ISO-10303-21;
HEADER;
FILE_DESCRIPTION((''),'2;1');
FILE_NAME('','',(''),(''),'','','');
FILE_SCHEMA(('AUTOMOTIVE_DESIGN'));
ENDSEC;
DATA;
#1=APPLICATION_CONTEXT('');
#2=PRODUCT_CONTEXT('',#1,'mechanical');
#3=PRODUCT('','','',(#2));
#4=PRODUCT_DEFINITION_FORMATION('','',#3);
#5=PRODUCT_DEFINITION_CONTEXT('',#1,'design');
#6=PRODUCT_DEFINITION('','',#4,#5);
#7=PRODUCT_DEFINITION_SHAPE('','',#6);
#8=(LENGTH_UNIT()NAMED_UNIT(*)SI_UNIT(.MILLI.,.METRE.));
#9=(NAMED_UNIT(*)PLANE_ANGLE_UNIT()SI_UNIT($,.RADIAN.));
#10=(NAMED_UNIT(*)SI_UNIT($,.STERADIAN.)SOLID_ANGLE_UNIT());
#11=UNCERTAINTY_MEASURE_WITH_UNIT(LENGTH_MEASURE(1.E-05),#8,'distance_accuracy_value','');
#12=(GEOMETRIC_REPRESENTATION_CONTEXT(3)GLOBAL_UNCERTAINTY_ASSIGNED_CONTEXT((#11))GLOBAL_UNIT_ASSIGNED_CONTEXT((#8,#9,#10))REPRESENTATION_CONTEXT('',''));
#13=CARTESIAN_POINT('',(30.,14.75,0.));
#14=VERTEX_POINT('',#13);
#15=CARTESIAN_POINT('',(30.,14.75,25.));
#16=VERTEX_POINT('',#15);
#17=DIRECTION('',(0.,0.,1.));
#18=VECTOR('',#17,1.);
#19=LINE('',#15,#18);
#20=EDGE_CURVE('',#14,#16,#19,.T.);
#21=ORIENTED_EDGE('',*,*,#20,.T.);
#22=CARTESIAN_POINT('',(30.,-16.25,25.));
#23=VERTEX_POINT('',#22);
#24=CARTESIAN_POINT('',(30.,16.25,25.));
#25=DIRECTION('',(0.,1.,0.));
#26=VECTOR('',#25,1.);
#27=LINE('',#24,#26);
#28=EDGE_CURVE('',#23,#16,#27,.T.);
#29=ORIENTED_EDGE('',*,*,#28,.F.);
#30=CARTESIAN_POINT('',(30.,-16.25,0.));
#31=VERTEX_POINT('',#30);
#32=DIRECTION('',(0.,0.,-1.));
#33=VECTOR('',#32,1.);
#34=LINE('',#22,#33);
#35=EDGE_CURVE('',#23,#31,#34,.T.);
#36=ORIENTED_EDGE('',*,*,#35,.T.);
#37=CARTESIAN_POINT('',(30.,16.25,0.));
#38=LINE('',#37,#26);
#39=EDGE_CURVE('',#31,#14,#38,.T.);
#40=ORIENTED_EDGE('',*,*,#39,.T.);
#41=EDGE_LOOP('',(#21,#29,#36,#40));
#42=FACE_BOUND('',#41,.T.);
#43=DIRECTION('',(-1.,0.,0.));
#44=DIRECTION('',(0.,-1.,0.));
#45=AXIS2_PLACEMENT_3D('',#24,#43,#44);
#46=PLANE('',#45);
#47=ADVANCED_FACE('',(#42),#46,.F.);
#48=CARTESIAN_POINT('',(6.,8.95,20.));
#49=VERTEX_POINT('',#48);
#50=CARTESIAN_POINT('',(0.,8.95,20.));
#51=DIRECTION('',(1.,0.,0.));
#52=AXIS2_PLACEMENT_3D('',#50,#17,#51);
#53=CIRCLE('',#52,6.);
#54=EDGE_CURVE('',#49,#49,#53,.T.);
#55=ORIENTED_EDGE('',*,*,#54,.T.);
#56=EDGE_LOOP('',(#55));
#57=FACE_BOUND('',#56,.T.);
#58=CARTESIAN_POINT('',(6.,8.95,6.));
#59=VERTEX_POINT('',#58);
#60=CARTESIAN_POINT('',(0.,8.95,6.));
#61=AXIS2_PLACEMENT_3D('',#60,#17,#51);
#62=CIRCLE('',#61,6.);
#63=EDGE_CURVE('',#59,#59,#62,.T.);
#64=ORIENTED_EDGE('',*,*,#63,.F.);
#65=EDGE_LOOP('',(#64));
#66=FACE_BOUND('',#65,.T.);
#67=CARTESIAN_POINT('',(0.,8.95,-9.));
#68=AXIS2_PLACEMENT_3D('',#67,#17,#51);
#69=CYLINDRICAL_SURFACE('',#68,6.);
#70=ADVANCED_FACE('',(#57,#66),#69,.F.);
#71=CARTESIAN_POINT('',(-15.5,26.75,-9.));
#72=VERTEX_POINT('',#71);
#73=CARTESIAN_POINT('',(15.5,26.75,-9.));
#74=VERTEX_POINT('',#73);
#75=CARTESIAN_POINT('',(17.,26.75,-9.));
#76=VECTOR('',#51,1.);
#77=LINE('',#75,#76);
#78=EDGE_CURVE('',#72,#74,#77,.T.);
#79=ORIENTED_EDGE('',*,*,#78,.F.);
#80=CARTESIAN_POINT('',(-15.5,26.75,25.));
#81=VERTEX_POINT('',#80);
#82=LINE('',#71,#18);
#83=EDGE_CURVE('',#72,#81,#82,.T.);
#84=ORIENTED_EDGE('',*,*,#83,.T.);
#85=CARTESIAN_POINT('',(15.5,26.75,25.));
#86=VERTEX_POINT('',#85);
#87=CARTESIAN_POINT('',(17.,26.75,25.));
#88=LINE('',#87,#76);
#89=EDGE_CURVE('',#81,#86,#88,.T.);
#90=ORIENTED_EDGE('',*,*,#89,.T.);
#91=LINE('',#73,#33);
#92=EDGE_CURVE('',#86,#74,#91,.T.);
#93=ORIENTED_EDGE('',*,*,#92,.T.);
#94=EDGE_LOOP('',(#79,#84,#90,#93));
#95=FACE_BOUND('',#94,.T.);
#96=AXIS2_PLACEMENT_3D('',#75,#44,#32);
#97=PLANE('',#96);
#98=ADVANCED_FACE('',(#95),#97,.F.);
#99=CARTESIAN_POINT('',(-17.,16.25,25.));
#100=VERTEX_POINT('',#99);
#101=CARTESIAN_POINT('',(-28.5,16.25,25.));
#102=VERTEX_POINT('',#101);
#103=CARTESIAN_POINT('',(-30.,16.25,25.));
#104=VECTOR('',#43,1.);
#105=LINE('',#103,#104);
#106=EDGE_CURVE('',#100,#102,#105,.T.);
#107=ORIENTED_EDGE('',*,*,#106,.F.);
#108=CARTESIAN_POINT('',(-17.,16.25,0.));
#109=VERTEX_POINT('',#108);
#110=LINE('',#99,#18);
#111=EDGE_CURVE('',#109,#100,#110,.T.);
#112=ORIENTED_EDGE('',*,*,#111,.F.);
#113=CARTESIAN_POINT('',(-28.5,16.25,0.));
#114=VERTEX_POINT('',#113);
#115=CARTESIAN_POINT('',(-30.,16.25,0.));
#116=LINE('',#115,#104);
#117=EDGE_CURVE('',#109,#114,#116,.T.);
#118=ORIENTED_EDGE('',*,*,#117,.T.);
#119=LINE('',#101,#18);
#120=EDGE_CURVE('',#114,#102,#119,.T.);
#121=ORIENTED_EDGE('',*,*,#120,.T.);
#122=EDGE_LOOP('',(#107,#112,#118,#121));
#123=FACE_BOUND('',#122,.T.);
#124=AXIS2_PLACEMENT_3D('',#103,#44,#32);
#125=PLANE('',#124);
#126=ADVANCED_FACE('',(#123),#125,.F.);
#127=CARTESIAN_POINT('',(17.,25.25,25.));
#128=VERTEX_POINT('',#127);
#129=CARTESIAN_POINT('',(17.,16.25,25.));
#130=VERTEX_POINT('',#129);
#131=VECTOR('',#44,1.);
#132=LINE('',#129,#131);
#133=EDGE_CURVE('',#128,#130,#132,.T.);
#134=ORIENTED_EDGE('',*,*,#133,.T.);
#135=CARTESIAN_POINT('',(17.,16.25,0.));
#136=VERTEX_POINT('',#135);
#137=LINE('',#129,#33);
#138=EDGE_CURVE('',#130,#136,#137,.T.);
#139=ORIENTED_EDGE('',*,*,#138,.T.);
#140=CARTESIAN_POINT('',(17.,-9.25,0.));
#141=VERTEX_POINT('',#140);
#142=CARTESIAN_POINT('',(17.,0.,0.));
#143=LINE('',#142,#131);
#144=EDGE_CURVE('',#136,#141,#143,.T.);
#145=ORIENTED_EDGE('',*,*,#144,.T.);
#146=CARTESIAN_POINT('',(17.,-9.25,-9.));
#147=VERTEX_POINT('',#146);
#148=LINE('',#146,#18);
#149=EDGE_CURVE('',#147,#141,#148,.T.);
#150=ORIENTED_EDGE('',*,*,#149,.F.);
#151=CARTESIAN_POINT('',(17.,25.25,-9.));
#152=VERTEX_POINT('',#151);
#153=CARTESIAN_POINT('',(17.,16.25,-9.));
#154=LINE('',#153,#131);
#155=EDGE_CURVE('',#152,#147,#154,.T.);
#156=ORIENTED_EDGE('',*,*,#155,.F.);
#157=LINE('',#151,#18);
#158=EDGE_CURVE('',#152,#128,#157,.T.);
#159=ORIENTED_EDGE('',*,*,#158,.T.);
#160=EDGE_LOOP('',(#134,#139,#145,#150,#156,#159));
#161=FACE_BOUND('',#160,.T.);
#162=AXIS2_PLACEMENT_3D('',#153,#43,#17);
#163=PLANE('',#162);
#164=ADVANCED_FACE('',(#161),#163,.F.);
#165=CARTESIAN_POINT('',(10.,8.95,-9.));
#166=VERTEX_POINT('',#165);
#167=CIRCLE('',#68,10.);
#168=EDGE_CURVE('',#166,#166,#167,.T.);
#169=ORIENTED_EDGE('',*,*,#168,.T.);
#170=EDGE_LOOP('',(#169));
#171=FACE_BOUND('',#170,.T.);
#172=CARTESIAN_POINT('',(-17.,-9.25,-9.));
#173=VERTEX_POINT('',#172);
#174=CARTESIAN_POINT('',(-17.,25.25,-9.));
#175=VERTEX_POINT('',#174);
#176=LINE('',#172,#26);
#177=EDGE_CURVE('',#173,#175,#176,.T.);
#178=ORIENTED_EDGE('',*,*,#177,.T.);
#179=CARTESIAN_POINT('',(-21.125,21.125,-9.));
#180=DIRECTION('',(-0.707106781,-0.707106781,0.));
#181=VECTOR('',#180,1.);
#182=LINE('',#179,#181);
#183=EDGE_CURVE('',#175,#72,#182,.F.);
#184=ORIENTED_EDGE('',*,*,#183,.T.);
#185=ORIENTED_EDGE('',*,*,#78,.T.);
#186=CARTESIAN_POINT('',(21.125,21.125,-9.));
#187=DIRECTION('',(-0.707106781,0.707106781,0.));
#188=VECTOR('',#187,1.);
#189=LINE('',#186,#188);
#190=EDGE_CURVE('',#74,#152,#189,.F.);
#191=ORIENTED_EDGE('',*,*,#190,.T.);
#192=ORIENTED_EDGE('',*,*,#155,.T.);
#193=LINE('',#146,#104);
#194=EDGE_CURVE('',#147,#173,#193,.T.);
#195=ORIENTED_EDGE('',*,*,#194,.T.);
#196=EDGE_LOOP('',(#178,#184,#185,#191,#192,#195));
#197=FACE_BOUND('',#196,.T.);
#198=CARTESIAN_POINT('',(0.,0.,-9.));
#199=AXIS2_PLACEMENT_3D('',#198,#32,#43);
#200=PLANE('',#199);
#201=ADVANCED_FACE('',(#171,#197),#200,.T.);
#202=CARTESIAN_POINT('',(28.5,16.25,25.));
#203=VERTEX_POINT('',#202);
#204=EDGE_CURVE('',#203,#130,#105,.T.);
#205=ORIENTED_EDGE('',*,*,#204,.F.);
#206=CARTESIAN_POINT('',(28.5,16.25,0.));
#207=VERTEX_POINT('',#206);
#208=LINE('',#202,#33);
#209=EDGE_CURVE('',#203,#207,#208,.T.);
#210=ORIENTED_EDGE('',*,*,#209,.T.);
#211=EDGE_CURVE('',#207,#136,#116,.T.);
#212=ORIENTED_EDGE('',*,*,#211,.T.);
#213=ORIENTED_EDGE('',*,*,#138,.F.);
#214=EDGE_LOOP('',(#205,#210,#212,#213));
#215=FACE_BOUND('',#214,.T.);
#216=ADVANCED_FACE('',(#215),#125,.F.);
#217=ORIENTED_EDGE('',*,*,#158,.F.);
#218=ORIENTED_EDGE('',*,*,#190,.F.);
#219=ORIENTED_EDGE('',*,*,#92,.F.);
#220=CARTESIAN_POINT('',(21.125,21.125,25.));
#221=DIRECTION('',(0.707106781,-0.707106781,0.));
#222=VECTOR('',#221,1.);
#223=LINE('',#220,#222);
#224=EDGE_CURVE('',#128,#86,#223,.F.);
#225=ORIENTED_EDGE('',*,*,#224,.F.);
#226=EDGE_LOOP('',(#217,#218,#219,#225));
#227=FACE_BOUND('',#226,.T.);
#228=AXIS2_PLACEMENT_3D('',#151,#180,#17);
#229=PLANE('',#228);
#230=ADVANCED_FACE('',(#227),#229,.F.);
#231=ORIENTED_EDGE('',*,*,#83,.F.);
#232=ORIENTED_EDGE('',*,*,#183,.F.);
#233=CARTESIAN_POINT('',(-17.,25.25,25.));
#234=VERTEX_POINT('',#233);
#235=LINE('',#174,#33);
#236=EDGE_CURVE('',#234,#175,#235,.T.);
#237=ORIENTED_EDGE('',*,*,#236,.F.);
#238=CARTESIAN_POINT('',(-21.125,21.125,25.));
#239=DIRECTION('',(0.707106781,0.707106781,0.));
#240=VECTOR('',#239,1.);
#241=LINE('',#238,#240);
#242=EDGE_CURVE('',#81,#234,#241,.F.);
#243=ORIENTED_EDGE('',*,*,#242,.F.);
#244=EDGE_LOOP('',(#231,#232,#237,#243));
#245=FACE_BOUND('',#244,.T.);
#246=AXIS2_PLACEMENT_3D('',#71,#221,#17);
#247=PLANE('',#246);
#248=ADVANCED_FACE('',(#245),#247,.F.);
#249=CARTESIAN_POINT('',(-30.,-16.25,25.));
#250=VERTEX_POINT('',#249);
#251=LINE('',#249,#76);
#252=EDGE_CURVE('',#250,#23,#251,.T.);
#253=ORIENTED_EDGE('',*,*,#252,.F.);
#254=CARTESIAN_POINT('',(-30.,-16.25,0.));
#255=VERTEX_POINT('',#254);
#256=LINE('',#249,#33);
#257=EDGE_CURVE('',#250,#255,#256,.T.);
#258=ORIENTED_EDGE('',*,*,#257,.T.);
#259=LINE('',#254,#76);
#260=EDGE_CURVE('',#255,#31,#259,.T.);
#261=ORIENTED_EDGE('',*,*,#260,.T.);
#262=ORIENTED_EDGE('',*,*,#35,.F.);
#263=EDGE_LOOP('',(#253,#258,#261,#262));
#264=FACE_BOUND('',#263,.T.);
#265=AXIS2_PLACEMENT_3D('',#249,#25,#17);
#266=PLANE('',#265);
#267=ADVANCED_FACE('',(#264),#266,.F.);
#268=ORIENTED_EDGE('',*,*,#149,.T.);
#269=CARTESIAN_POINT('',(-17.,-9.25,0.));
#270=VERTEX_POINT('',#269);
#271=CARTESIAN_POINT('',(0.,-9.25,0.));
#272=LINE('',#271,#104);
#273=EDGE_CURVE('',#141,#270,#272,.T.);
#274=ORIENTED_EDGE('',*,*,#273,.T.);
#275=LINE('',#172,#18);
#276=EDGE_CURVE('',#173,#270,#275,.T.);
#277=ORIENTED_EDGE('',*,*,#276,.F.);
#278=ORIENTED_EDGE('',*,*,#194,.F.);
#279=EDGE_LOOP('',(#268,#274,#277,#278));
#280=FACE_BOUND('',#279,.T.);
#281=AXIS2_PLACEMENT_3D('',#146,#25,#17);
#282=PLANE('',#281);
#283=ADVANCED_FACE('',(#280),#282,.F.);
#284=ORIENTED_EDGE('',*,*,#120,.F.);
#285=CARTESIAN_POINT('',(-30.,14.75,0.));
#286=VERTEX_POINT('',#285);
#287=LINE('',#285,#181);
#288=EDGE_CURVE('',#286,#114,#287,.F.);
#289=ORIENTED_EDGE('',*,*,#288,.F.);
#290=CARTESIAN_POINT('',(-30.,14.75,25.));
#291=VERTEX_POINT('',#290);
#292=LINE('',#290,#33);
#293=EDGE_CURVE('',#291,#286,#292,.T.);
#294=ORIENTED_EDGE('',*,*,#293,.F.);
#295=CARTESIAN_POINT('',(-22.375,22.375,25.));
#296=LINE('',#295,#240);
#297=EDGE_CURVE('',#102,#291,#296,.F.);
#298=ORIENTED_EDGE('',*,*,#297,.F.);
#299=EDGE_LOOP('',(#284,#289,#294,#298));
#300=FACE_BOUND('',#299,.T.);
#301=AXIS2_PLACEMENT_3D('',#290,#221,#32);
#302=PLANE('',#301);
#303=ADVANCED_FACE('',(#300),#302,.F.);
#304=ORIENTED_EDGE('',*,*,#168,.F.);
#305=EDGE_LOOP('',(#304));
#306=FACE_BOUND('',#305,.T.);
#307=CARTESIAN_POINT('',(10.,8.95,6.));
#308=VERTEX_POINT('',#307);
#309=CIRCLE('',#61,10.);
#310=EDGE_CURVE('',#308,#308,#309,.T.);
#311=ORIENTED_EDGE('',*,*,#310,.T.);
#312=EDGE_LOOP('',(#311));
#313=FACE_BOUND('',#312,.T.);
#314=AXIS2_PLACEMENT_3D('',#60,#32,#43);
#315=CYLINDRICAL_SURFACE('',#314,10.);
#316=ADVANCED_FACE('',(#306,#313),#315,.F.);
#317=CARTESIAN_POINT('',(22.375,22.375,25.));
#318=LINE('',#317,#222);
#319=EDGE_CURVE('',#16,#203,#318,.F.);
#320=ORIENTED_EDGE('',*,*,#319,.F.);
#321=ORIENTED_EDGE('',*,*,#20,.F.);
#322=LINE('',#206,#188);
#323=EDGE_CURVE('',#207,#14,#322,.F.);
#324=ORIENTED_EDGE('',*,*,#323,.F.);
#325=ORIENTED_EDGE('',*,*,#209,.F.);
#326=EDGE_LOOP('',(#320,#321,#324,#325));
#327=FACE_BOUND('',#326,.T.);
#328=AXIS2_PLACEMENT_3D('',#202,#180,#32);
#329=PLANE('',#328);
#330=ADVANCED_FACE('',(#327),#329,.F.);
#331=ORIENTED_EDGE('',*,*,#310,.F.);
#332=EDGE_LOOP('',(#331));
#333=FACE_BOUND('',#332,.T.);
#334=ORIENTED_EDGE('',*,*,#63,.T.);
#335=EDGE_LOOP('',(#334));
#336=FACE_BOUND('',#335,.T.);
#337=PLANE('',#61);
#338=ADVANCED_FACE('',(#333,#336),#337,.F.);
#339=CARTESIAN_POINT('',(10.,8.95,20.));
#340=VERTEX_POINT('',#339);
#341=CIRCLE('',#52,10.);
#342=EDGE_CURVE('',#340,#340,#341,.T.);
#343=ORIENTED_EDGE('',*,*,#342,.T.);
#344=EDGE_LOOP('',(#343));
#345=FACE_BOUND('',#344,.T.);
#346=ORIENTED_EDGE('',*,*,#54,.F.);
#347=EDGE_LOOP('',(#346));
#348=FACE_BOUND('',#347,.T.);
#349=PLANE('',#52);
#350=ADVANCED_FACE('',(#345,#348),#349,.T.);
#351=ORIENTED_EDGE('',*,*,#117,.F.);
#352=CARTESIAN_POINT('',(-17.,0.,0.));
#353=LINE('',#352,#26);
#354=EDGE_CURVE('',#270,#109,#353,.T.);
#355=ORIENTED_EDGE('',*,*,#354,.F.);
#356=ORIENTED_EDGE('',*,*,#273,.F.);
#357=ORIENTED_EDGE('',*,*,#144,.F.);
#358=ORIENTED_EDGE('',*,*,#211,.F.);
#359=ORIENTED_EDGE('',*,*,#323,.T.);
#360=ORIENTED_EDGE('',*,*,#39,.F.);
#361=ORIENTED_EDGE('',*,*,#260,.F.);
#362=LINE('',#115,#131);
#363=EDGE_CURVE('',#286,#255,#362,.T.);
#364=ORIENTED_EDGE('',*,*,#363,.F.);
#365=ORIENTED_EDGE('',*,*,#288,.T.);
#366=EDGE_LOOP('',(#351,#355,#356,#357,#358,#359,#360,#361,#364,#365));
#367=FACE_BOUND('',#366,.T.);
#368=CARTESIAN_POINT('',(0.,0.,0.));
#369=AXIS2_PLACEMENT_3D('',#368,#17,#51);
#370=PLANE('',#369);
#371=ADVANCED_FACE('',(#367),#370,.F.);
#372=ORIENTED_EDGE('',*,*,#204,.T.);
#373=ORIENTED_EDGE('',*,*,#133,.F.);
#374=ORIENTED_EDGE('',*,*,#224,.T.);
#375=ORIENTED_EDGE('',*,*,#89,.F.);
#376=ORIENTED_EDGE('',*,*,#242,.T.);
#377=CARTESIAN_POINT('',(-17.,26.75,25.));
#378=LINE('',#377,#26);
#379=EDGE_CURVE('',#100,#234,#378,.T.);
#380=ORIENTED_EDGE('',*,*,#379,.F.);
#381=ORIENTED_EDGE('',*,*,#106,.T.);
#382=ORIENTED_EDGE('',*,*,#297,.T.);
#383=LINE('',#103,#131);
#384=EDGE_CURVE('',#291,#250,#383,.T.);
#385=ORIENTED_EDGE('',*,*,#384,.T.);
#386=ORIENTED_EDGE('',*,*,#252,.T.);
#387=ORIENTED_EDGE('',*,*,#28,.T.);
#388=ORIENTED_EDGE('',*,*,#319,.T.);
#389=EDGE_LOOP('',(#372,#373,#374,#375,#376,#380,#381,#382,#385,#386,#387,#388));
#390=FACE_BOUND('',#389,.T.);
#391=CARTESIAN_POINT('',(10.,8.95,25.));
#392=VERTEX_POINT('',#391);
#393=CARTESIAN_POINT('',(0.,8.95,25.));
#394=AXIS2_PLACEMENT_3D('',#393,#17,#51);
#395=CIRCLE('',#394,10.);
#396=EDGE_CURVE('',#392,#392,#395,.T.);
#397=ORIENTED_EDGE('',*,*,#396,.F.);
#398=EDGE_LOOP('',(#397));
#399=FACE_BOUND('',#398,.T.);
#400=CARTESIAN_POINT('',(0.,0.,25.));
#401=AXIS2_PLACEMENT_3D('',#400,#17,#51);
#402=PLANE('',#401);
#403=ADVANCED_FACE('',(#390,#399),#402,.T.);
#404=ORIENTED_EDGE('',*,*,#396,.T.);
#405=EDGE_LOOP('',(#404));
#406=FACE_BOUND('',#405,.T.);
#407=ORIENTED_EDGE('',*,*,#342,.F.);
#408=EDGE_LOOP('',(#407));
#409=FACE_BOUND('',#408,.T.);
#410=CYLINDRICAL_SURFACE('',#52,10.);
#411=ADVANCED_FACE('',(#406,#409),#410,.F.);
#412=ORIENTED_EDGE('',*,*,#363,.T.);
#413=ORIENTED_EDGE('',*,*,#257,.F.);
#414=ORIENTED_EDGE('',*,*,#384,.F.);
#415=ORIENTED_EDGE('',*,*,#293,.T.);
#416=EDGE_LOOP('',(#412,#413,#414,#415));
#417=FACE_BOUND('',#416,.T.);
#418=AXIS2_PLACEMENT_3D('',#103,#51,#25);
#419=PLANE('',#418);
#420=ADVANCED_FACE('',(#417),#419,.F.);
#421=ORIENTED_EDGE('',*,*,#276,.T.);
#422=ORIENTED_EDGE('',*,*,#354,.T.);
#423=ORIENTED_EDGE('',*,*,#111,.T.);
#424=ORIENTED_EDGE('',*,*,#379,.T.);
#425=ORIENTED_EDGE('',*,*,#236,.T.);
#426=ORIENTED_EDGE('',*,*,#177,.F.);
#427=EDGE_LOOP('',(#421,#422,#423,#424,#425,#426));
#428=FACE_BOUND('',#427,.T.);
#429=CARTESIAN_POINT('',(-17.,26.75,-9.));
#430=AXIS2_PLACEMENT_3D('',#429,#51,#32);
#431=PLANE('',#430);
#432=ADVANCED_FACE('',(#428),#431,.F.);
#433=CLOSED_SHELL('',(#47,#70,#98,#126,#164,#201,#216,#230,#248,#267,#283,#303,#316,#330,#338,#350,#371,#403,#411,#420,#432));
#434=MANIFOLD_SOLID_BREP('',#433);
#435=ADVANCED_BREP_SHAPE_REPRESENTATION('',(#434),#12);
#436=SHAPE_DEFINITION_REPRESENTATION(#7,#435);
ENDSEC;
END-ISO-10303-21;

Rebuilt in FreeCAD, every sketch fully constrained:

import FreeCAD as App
import Part
import Sketcher
from FreeCAD import Vector
Q = App.Units.Quantity


def edges_at(feature, points):
    """Names of the edges that pass closest to the given points."""
    edges = feature.Shape.Edges
    near = lambda p: min(range(len(edges)), key=lambda i: edges[i].distToShape(Part.Vertex(*p))[0])
    return sorted({f"Edge{near(p) + 1}" for p in points})

doc = App.newDocument("Part")
body = doc.addObject("PartDesign::Body", "Body")

sketch1 = body.newObject("Sketcher::SketchObject", "Sketch")
sketch1.AttachmentSupport = (doc.getObject("XY_Plane"), [""])
sketch1.MapMode = "FlatFace"
sketch1.addGeometry([
    Part.LineSegment(Vector(-30, 16.25, 0), Vector(-30, -16.25, 0)),
    Part.LineSegment(Vector(-30, -16.25, 0), Vector(30, -16.25, 0)),
    Part.LineSegment(Vector(30, -16.25, 0), Vector(30, 16.25, 0)),
    Part.LineSegment(Vector(30, 16.25, 0), Vector(-30, 16.25, 0)),
], False)
sketch1.addConstraint([
    Sketcher.Constraint("Coincident", 0, 2, 1, 1),
    Sketcher.Constraint("Coincident", 1, 2, 2, 1),
    Sketcher.Constraint("Coincident", 2, 2, 3, 1),
    Sketcher.Constraint("Coincident", 3, 2, 0, 1),
    Sketcher.Constraint("Vertical", 0),
    Sketcher.Constraint("Horizontal", 1),
    Sketcher.Constraint("Vertical", 2),
    Sketcher.Constraint("Horizontal", 3),
    Sketcher.Constraint("Symmetric", 0, 2, 2, 2, -1, 1),
    Sketcher.Constraint("DistanceX", 1, 1, 1, 2, Q("60 mm")),
    Sketcher.Constraint("DistanceY", 0, 2, 0, 1, Q("32.5 mm")),
])
pad1 = body.newObject("PartDesign::Pad", "Pad")
pad1.Profile = sketch1
pad1.Length = 25

sketch2 = body.newObject("Sketcher::SketchObject", "Sketch001")
sketch2.AttachmentSupport = (doc.getObject("XY_Plane"), [""])
sketch2.MapMode = "FlatFace"
sketch2.AttachmentOffset = App.Placement(Vector(0, 0, 25), App.Rotation())
sketch2.addGeometry([
    Part.LineSegment(Vector(17, 26.75, 0), Vector(17, -9.25, 0)),
    Part.LineSegment(Vector(17, -9.25, 0), Vector(-17, -9.25, 0)),
    Part.LineSegment(Vector(-17, -9.25, 0), Vector(-17, 26.75, 0)),
    Part.LineSegment(Vector(-17, 26.75, 0), Vector(17, 26.75, 0)),
], False)
sketch2.addConstraint([
    Sketcher.Constraint("Coincident", 0, 2, 1, 1),
    Sketcher.Constraint("Coincident", 1, 2, 2, 1),
    Sketcher.Constraint("Coincident", 2, 2, 3, 1),
    Sketcher.Constraint("Coincident", 3, 2, 0, 1),
    Sketcher.Constraint("Vertical", 0),
    Sketcher.Constraint("Horizontal", 1),
    Sketcher.Constraint("Vertical", 2),
    Sketcher.Constraint("Horizontal", 3),
    Sketcher.Constraint("DistanceX", 1, 2, 1, 1, Q("34 mm")),
    Sketcher.Constraint("DistanceY", 0, 2, 0, 1, Q("36 mm")),
    Sketcher.Constraint("DistanceX", -1, 1, 0, 2, Q("17 mm")),
    Sketcher.Constraint("DistanceY", 0, 2, -1, 1, Q("9.25 mm")),
])
pad2 = body.newObject("PartDesign::Pad", "Pad001")
pad2.Profile = sketch2
pad2.Length = 34
pad2.Reversed = True

sketch3 = body.newObject("Sketcher::SketchObject", "Sketch002")
sketch3.AttachmentSupport = (doc.getObject("XY_Plane"), [""])
sketch3.MapMode = "FlatFace"
sketch3.AttachmentOffset = App.Placement(Vector(0, 0, 25), App.Rotation())
sketch3.addGeometry(Part.Circle(Vector(0, 8.95, 0), Vector(0, 0, 1), 6), False)
sketch3.addConstraint([
    Sketcher.Constraint("PointOnObject", 0, 3, -2),
    Sketcher.Constraint("Diameter", 0, Q("12 mm")),
    Sketcher.Constraint("DistanceY", -1, 1, 0, 3, Q("8.95 mm")),
])
pocket1 = body.newObject("PartDesign::Pocket", "Pocket")
pocket1.Profile = sketch3
pocket1.Type = "ThroughAll"
doc.recompute()

chamfer = body.newObject("PartDesign::Chamfer", "Chamfer")
chamfer.Base = (pocket1, edges_at(pocket1, [(17, 26.75, 8)]))
chamfer.Size = 1.5
doc.recompute()

chamfer2 = body.newObject("PartDesign::Chamfer", "Chamfer001")
chamfer2.Base = (chamfer, edges_at(chamfer, [(-17, 26.75, 8)]))
chamfer2.Size = 1.5
doc.recompute()

chamfer3 = body.newObject("PartDesign::Chamfer", "Chamfer002")
chamfer3.Base = (chamfer2, edges_at(chamfer2, [(-30, 16.25, 12.5), (30, 16.25, 12.5)]))
chamfer3.Size = 1.5

sketch4 = body.newObject("Sketcher::SketchObject", "Sketch003")
sketch4.AttachmentSupport = (doc.getObject("XY_Plane"), [""])
sketch4.MapMode = "FlatFace"
sketch4.AttachmentOffset = App.Placement(Vector(0, 0, -9), App.Rotation())
sketch4.addGeometry(Part.Circle(Vector(0, 8.95, 0), Vector(0, 0, 1), 10), False)
sketch4.addConstraint([
    Sketcher.Constraint("PointOnObject", 0, 3, -2),
    Sketcher.Constraint("Diameter", 0, Q("20 mm")),
    Sketcher.Constraint("DistanceY", -1, 1, 0, 3, Q("8.95 mm")),
])
pocket2 = body.newObject("PartDesign::Pocket", "Pocket001")
pocket2.Profile = sketch4
pocket2.Length = 15
pocket2.Reversed = True

sketch5 = body.newObject("Sketcher::SketchObject", "Sketch004")
sketch5.AttachmentSupport = (doc.getObject("XY_Plane"), [""])
sketch5.MapMode = "FlatFace"
sketch5.AttachmentOffset = App.Placement(Vector(0, 0, 25), App.Rotation())
sketch5.addGeometry(Part.Circle(Vector(0, 8.95, 0), Vector(0, 0, 1), 10), False)
sketch5.addConstraint([
    Sketcher.Constraint("PointOnObject", 0, 3, -2),
    Sketcher.Constraint("Diameter", 0, Q("20 mm")),
    Sketcher.Constraint("DistanceY", -1, 1, 0, 3, Q("8.95 mm")),
])
pocket3 = body.newObject("PartDesign::Pocket", "Pocket002")
pocket3.Profile = sketch5
pocket3.Length = 5

doc.recompute()
